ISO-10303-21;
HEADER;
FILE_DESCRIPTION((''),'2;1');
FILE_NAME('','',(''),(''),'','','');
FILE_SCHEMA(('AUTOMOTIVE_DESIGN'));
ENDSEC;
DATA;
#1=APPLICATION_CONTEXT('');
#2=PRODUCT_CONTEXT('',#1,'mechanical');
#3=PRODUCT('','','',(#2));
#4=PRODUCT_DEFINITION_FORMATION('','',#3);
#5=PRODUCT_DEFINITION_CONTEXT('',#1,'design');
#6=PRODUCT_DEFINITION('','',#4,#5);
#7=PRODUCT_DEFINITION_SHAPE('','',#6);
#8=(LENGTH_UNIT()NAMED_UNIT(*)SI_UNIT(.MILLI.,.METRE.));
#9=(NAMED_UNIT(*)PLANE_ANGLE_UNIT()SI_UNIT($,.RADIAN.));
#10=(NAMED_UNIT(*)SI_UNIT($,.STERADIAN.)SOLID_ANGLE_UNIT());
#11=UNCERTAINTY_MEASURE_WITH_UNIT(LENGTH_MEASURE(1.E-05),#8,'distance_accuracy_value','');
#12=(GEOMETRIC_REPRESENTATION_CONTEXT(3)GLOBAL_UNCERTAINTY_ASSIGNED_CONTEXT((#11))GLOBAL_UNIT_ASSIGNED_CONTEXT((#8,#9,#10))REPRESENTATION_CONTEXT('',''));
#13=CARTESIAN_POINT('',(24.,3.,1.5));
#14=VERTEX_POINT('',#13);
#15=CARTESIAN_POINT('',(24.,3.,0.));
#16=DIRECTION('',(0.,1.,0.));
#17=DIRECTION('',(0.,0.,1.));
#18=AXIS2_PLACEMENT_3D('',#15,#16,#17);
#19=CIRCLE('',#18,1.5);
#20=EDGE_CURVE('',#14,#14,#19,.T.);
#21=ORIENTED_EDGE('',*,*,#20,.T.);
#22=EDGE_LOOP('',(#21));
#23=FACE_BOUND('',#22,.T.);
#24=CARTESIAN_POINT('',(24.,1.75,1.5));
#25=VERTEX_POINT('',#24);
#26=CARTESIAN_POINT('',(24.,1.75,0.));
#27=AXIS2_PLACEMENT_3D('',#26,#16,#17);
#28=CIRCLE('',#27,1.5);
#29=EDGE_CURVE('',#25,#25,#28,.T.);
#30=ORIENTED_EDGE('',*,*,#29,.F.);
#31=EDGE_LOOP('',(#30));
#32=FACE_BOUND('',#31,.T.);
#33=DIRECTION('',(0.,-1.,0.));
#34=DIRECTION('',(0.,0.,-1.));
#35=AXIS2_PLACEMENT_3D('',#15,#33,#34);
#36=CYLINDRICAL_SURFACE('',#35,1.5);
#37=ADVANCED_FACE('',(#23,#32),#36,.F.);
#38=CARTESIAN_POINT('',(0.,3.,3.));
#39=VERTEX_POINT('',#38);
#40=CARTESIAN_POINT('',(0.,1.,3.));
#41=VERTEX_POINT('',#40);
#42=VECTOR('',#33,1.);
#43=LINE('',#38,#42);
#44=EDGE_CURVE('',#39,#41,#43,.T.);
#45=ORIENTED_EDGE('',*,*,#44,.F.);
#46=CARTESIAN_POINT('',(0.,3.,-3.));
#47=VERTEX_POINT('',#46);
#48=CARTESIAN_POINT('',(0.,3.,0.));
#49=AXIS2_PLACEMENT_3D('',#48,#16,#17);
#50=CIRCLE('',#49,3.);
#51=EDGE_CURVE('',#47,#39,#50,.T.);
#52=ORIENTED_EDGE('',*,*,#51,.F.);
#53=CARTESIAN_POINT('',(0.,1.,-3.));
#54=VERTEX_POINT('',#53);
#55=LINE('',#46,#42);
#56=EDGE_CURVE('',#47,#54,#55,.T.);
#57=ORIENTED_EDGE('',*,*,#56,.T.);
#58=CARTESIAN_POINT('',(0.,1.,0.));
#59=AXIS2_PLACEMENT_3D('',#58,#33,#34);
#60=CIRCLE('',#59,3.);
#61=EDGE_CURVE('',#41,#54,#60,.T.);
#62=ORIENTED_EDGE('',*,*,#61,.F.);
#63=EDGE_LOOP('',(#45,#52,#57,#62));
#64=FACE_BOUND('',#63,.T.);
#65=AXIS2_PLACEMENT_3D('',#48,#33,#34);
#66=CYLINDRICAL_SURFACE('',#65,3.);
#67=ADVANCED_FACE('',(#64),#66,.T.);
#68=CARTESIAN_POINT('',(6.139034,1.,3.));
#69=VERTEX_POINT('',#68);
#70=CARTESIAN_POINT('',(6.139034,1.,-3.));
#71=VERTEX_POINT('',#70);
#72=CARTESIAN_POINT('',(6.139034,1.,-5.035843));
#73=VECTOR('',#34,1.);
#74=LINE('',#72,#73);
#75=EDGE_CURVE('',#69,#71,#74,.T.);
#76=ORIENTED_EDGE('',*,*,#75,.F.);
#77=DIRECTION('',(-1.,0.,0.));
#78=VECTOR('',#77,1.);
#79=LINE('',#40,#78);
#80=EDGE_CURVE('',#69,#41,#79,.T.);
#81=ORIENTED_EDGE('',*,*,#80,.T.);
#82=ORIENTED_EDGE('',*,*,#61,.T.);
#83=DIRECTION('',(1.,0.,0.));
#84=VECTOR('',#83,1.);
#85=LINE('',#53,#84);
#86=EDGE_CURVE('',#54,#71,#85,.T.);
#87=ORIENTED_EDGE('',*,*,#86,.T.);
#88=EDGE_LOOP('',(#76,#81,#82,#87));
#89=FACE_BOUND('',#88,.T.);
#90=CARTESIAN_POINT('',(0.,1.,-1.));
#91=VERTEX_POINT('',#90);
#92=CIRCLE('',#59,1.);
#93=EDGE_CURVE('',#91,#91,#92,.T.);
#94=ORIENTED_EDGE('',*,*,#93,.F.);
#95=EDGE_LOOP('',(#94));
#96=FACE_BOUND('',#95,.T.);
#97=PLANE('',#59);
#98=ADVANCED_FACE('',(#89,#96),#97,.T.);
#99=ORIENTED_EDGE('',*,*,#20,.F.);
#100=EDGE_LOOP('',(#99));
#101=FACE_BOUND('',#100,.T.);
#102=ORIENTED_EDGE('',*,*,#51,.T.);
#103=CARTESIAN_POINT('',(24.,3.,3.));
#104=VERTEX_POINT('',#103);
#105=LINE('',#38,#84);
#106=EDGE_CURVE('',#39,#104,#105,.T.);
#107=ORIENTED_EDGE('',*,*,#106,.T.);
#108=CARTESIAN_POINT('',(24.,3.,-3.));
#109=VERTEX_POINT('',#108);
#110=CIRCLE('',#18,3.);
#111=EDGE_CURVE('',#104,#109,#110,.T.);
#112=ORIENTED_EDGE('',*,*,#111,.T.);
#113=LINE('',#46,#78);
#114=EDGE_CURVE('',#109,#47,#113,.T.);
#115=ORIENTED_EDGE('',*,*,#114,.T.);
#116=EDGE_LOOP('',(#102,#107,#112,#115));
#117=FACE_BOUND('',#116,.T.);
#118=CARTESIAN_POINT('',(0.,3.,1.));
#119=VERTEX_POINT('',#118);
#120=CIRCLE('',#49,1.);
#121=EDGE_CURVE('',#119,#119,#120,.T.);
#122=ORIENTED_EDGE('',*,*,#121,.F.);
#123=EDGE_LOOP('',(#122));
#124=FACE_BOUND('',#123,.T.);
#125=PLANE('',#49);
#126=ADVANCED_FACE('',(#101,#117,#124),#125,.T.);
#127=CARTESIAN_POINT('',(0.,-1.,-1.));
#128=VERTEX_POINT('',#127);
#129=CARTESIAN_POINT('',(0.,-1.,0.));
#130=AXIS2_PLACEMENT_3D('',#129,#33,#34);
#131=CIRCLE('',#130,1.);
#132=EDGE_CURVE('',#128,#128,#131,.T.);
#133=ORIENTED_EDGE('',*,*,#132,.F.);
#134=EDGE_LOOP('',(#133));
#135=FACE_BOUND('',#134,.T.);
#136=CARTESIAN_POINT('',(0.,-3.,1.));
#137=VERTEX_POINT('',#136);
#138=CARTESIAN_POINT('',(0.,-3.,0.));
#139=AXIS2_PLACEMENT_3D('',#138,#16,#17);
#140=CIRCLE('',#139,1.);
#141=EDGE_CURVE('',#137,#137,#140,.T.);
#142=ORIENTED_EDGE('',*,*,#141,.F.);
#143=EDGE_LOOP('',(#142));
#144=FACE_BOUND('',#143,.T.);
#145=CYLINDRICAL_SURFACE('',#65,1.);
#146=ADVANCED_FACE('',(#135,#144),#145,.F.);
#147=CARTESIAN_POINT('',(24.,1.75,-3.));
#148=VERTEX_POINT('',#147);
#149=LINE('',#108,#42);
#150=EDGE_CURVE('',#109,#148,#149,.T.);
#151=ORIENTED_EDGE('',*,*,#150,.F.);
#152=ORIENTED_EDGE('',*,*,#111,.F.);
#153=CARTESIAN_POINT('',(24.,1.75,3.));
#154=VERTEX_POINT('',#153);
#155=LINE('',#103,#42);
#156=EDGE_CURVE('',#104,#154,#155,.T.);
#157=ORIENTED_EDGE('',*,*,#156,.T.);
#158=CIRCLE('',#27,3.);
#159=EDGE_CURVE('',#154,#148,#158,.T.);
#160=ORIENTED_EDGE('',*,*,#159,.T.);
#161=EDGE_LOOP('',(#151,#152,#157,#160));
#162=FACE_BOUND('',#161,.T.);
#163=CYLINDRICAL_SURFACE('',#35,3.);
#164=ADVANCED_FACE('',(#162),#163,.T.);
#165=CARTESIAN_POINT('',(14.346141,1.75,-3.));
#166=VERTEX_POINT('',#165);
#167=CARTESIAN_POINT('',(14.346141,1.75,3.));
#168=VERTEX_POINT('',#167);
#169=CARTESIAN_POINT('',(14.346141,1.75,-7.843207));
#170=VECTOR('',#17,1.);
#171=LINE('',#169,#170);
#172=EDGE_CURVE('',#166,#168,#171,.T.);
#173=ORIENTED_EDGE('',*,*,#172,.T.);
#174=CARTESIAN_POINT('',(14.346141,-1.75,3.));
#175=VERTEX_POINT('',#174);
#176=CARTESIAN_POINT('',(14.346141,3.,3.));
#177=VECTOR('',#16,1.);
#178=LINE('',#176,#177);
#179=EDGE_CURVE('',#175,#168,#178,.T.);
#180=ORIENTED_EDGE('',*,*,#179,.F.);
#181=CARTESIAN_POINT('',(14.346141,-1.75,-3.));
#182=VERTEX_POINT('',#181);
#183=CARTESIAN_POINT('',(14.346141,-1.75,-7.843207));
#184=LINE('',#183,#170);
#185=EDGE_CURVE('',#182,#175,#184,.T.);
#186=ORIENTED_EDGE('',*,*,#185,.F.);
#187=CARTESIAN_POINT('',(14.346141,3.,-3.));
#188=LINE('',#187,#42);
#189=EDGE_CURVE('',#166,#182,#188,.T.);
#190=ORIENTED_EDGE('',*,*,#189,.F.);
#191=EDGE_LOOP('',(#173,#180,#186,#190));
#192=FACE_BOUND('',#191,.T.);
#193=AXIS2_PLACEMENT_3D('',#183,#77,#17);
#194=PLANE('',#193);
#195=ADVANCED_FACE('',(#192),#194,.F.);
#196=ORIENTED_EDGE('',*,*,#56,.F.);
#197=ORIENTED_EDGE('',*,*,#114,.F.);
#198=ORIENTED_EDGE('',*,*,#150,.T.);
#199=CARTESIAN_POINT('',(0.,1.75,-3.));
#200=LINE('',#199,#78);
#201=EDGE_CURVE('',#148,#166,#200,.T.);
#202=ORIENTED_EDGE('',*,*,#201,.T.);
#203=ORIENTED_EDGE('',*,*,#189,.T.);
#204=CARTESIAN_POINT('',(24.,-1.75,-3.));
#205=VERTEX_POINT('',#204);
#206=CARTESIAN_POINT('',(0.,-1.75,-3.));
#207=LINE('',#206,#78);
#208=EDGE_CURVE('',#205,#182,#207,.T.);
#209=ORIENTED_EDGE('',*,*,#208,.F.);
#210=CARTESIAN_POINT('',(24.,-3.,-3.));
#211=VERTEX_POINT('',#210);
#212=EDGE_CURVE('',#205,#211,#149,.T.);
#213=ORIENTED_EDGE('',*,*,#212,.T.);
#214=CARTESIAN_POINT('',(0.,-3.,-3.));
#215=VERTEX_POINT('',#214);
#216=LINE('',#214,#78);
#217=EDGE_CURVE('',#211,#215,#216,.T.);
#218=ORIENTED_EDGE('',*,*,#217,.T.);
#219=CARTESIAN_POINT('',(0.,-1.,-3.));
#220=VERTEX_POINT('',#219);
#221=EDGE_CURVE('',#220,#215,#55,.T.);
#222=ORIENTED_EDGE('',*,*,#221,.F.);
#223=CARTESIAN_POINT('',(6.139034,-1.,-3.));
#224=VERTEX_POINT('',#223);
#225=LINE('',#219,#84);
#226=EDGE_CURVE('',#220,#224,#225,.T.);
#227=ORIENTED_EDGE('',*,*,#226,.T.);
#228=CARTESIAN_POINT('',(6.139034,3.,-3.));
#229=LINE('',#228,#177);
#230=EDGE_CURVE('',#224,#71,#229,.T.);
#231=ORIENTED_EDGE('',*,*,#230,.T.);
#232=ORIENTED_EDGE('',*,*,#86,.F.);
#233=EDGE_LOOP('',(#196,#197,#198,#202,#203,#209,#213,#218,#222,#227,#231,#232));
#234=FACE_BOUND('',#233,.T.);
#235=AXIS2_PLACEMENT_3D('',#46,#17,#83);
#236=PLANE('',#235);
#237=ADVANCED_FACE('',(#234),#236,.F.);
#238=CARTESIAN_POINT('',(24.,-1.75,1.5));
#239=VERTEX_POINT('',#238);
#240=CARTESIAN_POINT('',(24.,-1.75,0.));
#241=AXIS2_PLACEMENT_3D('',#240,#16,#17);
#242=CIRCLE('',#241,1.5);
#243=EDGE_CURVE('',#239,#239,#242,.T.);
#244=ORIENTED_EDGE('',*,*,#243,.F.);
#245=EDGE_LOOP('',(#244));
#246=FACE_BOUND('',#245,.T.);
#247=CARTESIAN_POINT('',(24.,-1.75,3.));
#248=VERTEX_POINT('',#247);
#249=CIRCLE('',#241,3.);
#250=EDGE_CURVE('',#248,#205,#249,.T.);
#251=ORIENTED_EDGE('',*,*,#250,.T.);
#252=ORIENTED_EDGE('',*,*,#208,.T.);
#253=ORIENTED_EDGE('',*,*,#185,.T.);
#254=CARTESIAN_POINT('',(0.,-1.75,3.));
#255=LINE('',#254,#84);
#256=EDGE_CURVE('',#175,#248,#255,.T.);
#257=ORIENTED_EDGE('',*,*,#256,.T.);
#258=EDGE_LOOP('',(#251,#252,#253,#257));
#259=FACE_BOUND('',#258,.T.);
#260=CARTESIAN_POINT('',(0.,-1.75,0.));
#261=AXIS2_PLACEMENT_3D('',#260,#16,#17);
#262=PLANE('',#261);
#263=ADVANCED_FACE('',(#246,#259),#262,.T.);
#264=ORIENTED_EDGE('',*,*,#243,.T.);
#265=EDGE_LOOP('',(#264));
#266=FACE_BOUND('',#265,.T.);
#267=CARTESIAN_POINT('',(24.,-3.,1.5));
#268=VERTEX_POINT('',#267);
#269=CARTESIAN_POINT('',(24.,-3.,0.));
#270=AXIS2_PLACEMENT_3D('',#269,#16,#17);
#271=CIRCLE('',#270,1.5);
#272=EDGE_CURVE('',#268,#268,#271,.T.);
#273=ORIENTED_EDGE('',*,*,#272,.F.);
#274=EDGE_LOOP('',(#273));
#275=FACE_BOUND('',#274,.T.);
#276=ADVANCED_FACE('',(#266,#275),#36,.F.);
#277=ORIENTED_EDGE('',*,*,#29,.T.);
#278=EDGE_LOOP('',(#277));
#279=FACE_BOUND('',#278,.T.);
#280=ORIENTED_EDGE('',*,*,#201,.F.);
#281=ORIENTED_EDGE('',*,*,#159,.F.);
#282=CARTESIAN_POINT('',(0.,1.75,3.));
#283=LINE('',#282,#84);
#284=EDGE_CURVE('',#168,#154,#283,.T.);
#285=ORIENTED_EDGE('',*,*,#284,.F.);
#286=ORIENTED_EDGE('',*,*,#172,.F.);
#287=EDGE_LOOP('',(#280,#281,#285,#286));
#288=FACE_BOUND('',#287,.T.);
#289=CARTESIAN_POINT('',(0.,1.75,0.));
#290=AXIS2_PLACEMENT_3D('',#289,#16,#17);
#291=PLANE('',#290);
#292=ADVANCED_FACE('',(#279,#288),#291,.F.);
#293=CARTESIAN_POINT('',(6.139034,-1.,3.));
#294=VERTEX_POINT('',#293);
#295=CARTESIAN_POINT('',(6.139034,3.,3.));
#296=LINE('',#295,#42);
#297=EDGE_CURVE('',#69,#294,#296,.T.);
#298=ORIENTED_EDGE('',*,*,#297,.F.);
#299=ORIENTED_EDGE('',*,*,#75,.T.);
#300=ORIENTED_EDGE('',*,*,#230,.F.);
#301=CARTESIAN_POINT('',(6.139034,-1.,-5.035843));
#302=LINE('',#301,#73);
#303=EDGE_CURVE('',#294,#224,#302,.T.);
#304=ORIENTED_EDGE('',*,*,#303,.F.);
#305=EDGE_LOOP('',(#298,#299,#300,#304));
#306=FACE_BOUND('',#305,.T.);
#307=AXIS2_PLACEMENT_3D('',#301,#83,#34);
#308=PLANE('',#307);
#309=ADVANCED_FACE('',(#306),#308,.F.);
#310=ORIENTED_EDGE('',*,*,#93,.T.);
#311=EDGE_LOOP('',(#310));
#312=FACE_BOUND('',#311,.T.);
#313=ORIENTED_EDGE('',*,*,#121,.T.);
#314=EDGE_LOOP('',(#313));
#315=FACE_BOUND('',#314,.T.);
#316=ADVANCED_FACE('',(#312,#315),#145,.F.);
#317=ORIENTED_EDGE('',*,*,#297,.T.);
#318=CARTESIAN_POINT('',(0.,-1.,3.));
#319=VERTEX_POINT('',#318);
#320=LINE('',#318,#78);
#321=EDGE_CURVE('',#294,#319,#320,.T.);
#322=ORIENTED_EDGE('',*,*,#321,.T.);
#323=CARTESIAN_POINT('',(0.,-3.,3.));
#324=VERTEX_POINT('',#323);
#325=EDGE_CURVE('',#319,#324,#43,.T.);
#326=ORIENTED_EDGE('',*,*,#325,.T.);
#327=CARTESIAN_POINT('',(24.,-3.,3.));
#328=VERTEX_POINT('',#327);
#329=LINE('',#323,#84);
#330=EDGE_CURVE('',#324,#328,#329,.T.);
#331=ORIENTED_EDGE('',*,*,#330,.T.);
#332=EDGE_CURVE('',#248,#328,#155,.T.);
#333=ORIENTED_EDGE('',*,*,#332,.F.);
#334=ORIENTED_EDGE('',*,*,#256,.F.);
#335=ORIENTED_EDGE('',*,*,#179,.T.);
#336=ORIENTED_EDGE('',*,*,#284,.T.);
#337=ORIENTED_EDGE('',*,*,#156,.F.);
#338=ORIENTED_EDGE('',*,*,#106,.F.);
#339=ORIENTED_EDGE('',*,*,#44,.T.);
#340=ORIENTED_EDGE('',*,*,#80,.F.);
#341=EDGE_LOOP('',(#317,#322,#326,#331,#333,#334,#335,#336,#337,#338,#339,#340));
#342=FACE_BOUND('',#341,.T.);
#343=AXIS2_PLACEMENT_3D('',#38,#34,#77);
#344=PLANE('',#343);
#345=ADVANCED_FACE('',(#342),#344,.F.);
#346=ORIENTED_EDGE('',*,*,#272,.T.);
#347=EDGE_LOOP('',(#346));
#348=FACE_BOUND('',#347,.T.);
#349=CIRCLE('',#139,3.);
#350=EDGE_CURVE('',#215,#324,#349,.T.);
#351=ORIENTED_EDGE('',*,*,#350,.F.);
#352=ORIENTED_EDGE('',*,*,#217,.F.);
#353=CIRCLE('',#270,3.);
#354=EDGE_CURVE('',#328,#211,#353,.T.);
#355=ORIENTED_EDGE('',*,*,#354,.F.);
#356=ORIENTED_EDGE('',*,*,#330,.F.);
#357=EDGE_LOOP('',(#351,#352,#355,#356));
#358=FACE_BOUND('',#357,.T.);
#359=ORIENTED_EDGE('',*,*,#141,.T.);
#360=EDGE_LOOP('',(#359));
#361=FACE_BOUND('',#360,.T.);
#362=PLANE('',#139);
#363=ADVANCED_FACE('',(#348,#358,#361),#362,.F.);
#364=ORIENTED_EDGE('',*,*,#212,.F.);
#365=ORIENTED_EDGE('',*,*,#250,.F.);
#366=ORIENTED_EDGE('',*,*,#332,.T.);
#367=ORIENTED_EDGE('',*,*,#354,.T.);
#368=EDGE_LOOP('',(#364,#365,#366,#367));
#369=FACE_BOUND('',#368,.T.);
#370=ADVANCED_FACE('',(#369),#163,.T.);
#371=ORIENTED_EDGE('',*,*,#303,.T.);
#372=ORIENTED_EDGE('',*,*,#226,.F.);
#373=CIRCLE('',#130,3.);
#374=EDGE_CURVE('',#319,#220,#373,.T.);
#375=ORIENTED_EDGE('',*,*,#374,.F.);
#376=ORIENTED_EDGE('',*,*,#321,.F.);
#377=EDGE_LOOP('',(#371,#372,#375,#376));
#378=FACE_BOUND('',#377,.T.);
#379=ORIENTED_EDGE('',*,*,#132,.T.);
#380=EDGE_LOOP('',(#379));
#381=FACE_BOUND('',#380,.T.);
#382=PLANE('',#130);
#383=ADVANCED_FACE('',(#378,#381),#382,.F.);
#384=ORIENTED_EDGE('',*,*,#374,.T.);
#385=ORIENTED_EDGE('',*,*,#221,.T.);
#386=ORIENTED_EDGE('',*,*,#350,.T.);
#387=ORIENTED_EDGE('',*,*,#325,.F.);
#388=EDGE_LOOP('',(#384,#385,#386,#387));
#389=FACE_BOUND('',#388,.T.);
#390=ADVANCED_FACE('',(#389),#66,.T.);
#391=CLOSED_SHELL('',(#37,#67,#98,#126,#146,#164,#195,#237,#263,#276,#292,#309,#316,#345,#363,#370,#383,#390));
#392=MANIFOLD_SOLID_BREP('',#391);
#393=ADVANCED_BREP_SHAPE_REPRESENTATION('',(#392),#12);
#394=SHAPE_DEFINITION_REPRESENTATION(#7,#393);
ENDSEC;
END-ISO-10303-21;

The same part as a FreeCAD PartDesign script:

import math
import FreeCAD as App
import Part
import Sketcher
from FreeCAD import Vector


def add_polygon(sketch, points):
    """Adds a closed chain of lines whose ends are joined by coincident constraints."""
    first, n = sketch.GeometryCount, len(points)
    for a, b in zip(points, points[1:] + points[:1]):
        sketch.addGeometry(Part.LineSegment(App.Vector(*a, 0), App.Vector(*b, 0)), False)
    for i in range(n):
        sketch.addConstraint(Sketcher.Constraint("Coincident", first + i, 2, first + (i + 1) % n, 1))

doc = App.newDocument("Part")
body = doc.addObject("PartDesign::Body", "Body")

sketch1 = body.newObject("Sketcher::SketchObject", "Sketch")
sketch1.AttachmentSupport = (doc.getObject("XZ_Plane"), [""])
sketch1.MapMode = "FlatFace"
sketch1.addGeometry([
    Part.LineSegment(Vector(24, -3, 0), Vector(0, -3, 0)),
    Part.ArcOfCircle(Part.Circle(Vector(0, 0, 0), Vector(0, 0, 1), 3), math.radians(90), math.radians(270)),
    Part.LineSegment(Vector(0, 3, 0), Vector(24, 3, 0)),
    Part.ArcOfCircle(Part.Circle(Vector(24, 0, 0), Vector(0, 0, 1), 3), math.radians(-90), math.radians(90)),
    Part.Circle(Vector(24, 0, 0), Vector(0, 0, 1), 1.5),
    Part.Circle(Vector(0, 0, 0), Vector(0, 0, 1), 1),
], False)
sketch1.addConstraint([
    Sketcher.Constraint("Tangent", 0, 2, 1, 2),
    Sketcher.Constraint("Tangent", 1, 1, 2, 1),
    Sketcher.Constraint("Tangent", 2, 2, 3, 2),
    Sketcher.Constraint("Tangent", 3, 1, 0, 1),
    Sketcher.Constraint("Horizontal", 0),
    Sketcher.Constraint("Horizontal", 2),
    Sketcher.Constraint("Coincident", 1, 3, -1, 1),
    Sketcher.Constraint("Coincident", 5, 3, -1, 1),
    Sketcher.Constraint("Coincident", 4, 3, 3, 3),
    Sketcher.Constraint("Diameter", 4, 3.0),
    Sketcher.Constraint("Diameter", 5, 2.0),
    Sketcher.Constraint("Radius", 1, 3.0),
    Sketcher.Constraint("DistanceX", 0, 2, 0, 1, 24.0),
])
pad1 = body.newObject("PartDesign::Pad", "Pad")
pad1.Profile = sketch1
pad1.Length = 6
pad1.Midplane = True

sketch2 = body.newObject("Sketcher::SketchObject", "Sketch001")
sketch2.AttachmentSupport = (doc.getObject("XZ_Plane"), [""])
sketch2.MapMode = "FlatFace"
add_polygon(sketch2, [(14.346141, -7.843207), (14.346141, 3.76199), (45.857511, 3.76199), (45.857511, -7.843207)])
sketch2.addConstraint([
    Sketcher.Constraint("Vertical", 0),
    Sketcher.Constraint("Horizontal", 1),
    Sketcher.Constraint("Vertical", 2),
    Sketcher.Constraint("Horizontal", 3),
    Sketcher.Constraint("DistanceX", 1, 1, 1, 2, 31.51137),
    Sketcher.Constraint("DistanceY", 0, 1, 0, 2, 11.605198),
    Sketcher.Constraint("DistanceX", -1, 1, 0, 2, 14.346141),
    Sketcher.Constraint("DistanceY", -1, 1, 0, 2, 3.76199),
])
pocket1 = body.newObject("PartDesign::Pocket", "Pocket")
pocket1.Profile = sketch2
pocket1.Length = 3.5
pocket1.Midplane = True

sketch3 = body.newObject("Sketcher::SketchObject", "Sketch002")
sketch3.AttachmentSupport = (doc.getObject("XZ_Plane"), [""])
sketch3.MapMode = "FlatFace"
add_polygon(sketch3, [(-6.521183, -5.035843), (-6.521183, 4.614084), (6.139034, 4.614084), (6.139034, -5.035843)])
sketch3.addConstraint([
    Sketcher.Constraint("Vertical", 0),
    Sketcher.Constraint("Horizontal", 1),
    Sketcher.Constraint("Vertical", 2),
    Sketcher.Constraint("Horizontal", 3),
    Sketcher.Constraint("DistanceX", 1, 1, 1, 2, 12.660217),
    Sketcher.Constraint("DistanceY", 0, 1, 0, 2, 9.649928),
    Sketcher.Constraint("DistanceX", 0, 2, -1, 1, 6.521183),
    Sketcher.Constraint("DistanceY", -1, 1, 0, 2, 4.614084),
])
pocket2 = body.newObject("PartDesign::Pocket", "Pocket001")
pocket2.Profile = sketch3
pocket2.Length = 2
pocket2.Midplane = True

doc.recompute()
